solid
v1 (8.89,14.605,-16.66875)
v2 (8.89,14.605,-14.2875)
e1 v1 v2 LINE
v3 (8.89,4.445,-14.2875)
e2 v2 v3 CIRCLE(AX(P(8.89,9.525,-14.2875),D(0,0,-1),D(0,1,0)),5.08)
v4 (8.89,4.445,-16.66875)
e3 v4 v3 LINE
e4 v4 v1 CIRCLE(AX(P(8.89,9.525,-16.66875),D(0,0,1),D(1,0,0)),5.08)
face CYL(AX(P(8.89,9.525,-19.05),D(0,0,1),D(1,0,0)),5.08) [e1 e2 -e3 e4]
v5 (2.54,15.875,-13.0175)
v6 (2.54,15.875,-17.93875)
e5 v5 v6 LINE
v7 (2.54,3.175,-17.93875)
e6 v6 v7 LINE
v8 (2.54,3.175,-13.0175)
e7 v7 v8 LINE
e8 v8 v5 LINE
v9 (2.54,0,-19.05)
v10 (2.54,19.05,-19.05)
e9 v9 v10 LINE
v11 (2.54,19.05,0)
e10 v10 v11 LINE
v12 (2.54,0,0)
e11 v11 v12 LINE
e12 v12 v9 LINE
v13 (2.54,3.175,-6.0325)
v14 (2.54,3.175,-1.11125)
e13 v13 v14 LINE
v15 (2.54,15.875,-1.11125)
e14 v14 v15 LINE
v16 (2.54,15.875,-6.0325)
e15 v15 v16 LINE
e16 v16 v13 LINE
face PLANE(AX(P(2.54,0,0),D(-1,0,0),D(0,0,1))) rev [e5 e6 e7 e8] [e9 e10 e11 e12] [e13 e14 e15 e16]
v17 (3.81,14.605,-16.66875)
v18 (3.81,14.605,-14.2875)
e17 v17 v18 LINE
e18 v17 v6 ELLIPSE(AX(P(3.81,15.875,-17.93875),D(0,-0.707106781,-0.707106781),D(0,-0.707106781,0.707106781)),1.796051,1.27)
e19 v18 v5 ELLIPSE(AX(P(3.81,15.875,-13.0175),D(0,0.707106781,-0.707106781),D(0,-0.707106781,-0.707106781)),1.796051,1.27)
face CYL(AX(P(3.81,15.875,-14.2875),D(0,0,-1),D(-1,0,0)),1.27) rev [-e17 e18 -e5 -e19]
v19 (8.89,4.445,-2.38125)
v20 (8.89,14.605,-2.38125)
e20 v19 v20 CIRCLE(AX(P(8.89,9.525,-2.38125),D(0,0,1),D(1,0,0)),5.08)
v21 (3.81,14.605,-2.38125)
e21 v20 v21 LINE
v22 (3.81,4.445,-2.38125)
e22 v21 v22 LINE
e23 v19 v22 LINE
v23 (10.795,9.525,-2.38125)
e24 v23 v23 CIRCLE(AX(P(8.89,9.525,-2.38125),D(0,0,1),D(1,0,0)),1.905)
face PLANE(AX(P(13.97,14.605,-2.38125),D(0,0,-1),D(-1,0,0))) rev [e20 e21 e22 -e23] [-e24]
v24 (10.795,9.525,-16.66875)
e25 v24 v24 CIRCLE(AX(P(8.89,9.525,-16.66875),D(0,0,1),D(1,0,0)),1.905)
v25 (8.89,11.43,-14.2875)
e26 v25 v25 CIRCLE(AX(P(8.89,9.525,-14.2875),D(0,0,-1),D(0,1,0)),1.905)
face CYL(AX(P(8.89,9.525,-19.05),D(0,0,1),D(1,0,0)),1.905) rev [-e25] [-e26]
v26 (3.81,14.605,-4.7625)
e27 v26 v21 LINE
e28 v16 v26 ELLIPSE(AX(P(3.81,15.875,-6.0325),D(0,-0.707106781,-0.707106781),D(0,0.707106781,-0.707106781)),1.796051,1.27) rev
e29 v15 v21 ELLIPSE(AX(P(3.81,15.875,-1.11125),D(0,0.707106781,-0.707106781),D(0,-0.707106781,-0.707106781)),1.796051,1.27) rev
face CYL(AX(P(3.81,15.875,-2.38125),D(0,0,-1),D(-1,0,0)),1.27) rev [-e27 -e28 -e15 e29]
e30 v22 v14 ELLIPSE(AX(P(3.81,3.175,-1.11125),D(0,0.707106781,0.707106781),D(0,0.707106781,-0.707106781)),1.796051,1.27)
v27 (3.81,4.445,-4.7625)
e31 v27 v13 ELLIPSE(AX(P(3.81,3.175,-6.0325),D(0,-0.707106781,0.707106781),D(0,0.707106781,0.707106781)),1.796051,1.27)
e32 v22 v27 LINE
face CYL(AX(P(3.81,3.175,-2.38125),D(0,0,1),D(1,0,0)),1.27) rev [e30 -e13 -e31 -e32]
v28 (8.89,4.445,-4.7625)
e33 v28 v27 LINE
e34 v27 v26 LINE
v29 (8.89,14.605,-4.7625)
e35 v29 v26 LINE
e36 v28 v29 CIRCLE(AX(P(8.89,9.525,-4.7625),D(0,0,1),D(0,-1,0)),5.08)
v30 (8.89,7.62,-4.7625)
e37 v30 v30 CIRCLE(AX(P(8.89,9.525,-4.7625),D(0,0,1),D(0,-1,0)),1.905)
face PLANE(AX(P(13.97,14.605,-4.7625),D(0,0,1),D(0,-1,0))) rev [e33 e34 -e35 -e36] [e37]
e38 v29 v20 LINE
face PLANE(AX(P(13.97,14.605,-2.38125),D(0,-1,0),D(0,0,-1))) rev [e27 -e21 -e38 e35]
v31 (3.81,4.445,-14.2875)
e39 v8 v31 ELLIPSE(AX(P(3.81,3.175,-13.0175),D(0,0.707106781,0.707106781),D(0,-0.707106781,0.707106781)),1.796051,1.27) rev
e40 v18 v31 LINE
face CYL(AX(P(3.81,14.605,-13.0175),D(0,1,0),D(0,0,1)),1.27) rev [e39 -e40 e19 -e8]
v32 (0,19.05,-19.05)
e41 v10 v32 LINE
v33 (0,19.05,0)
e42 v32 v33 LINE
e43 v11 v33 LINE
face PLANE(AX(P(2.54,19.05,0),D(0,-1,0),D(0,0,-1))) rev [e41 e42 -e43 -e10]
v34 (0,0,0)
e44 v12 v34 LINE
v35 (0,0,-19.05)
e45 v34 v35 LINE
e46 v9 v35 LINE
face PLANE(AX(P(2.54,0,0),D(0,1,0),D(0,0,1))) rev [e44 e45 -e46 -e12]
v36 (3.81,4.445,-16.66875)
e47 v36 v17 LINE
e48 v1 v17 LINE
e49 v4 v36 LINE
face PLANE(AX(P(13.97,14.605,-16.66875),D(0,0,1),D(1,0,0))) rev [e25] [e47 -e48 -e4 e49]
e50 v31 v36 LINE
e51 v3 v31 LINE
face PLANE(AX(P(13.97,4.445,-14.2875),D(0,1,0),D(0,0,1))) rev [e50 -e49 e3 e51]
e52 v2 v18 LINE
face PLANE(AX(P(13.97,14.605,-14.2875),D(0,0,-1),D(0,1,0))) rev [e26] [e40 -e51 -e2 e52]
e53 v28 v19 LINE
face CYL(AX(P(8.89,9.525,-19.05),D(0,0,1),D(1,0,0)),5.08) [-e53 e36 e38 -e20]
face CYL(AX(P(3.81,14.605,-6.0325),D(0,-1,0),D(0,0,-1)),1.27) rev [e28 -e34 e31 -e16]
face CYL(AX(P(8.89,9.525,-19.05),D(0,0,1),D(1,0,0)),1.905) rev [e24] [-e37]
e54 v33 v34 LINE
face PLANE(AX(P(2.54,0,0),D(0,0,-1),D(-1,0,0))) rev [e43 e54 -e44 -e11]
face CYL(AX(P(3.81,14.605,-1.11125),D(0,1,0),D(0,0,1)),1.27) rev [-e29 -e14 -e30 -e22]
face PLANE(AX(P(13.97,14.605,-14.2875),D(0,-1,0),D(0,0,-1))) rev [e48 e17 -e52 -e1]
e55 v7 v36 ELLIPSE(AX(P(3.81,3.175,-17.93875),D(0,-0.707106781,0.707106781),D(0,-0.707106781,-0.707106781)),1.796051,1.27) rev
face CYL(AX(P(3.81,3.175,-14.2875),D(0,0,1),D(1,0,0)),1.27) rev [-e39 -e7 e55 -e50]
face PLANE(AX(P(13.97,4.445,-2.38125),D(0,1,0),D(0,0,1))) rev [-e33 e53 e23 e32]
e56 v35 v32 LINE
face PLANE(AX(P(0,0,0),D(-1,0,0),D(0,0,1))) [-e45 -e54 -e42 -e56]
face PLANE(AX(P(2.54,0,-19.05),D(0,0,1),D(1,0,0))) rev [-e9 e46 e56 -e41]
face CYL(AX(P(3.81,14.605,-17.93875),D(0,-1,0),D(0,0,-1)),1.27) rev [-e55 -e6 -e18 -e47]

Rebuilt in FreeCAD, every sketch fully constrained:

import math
import FreeCAD as App
import Part
import Sketcher
Q = App.Units.Quantity


def edges_at(feature, points):
    """Names of the edges that pass closest to the given points."""
    edges = feature.Shape.Edges
    near = lambda p: min(range(len(edges)), key=lambda i: edges[i].distToShape(Part.Vertex(*p))[0])
    return sorted({f"Edge{near(p) + 1}" for p in points})


def add_polygon(sketch, points):
    """Adds a closed chain of lines whose ends are joined by coincident constraints."""
    first, n = sketch.GeometryCount, len(points)
    for a, b in zip(points, points[1:] + points[:1]):
        sketch.addGeometry(Part.LineSegment(App.Vector(*a, 0), App.Vector(*b, 0)), False)
    for i in range(n):
        sketch.addConstraint(Sketcher.Constraint("Coincident", first + i, 2, first + (i + 1) % n, 1))

doc = App.newDocument("Part")
body = doc.addObject("PartDesign::Body", "Body")

# Sketch on YZ plane
sketch1 = doc.addObject("Sketcher::SketchObject", "Sketch")
body.addObject(sketch1)
sketch1.AttachmentSupport = (doc.YZ_Plane, [""])
sketch1.MapMode = "FlatFace"
add_polygon(sketch1, [(19, 0), (0, 0), (0, -19), (19, -19)])  # lines 0-3
sketch1.addConstraint(Sketcher.Constraint("Horizontal", 0))
sketch1.addConstraint(Sketcher.Constraint("Vertical", 1))
sketch1.addConstraint(Sketcher.Constraint("Horizontal", 2))
sketch1.addConstraint(Sketcher.Constraint("Vertical", 3))
sketch1.addConstraint(Sketcher.Constraint("Coincident", 0, 2, -1, 1))
sketch1.addConstraint(Sketcher.Constraint("Equal", 2, 1))
sketch1.addConstraint(Sketcher.Constraint("DistanceX", 0, 2, 0, 1, Q("0.75 in")))
pad1 = doc.addObject("PartDesign::Pad", "Pad")
body.addObject(pad1)
pad1.Profile = sketch1
pad1.Length = Q("0.1 in")

# Sketch on YZ plane
sketch2 = doc.addObject("Sketcher::SketchObject", "Sketch001")
body.addObject(sketch2)
sketch2.AttachmentSupport = (doc.YZ_Plane, [""])
sketch2.MapMode = "FlatFace"
sketch2.AttachmentOffset = App.Placement(App.Vector(0, 0, 0.1 * 25.4), App.Rotation())
add_polygon(sketch2, [(14.6, -2.4), (4.4, -2.4), (4.4, -4.8), (14.6, -4.8)])  # lines 0-3
add_polygon(sketch2, [(14.6, -14.3), (4.4, -14.3), (4.4, -16.7), (14.6, -16.7)])  # lines 4-7
sketch2.addConstraint(Sketcher.Constraint("Horizontal", 0))
sketch2.addConstraint(Sketcher.Constraint("Vertical", 1))
sketch2.addConstraint(Sketcher.Constraint("Horizontal", 2))
sketch2.addConstraint(Sketcher.Constraint("Vertical", 3))
sketch2.addConstraint(Sketcher.Constraint("Horizontal", 4))
sketch2.addConstraint(Sketcher.Constraint("Vertical", 5))
sketch2.addConstraint(Sketcher.Constraint("Horizontal", 6))
sketch2.addConstraint(Sketcher.Constraint("Vertical", 7))
sketch2.addConstraint(Sketcher.Constraint("Vertical", 1, 2, 4, 2))
sketch2.addConstraint(Sketcher.Constraint("Vertical", 3, 2, 6, 2))
sketch2.addConstraint(Sketcher.Constraint("Equal", 3, 5))
sketch2.addConstraint(Sketcher.Constraint("DistanceX", 0, 2, 0, 1, Q("0.4 in")))
sketch2.addConstraint(Sketcher.Constraint("DistanceY", 1, 2, 1, 1, Q("0.09375 in")))
sketch2.addConstraint(Sketcher.Constraint("DistanceX", -1, 1, 0, 2, Q("0.175 in")))
sketch2.addConstraint(Sketcher.Constraint("DistanceY", 0, 2, -1, 1, Q("0.09375 in")))
sketch2.addConstraint(Sketcher.Constraint("DistanceY", 4, 2, -1, 1, Q("0.5625 in")))
pad2 = doc.addObject("PartDesign::Pad", "Pad001")
body.addObject(pad2)
pad2.Profile = sketch2
pad2.Length = Q("0.45 in")

# Sketch on XY plane
sketch3 = doc.addObject("Sketcher::SketchObject", "Sketch002")
body.addObject(sketch3)
sketch3.AttachmentSupport = (doc.XY_Plane, [""])
sketch3.MapMode = "FlatFace"
sketch3.AttachmentOffset = App.Placement(App.Vector(0, 0, -0.09375 * 25.4), App.Rotation())
sketch3.addGeometry(Part.LineSegment(App.Vector(14, 15, 0), App.Vector(9, 15, 0)), False)
sketch3.addGeometry(Part.ArcOfCircle(Part.Circle(App.Vector(9, 10, 0), App.Vector(0, 0, 1), 5), math.radians(0), math.radians(90)), False)
sketch3.addGeometry(Part.LineSegment(App.Vector(14, 10, 0), App.Vector(14, 15, 0)), False)
sketch3.addGeometry(Part.LineSegment(App.Vector(14, 4, 0), App.Vector(14, 10, 0)), False)
sketch3.addGeometry(Part.ArcOfCircle(Part.Circle(App.Vector(9, 10, 0), App.Vector(0, 0, 1), 5), math.radians(-90), math.radians(0)), False)
sketch3.addGeometry(Part.LineSegment(App.Vector(9, 4, 0), App.Vector(14, 4, 0)), False)
sketch3.addConstraint(Sketcher.Constraint("Tangent", 0, 2, 1, 2))
sketch3.addConstraint(Sketcher.Constraint("Tangent", 1, 1, 2, 1))
sketch3.addConstraint(Sketcher.Constraint("Coincident", 2, 2, 0, 1))
sketch3.addConstraint(Sketcher.Constraint("Tangent", 3, 2, 4, 2))
sketch3.addConstraint(Sketcher.Constraint("Tangent", 4, 1, 5, 1))
sketch3.addConstraint(Sketcher.Constraint("Coincident", 5, 2, 3, 1))
sketch3.addConstraint(Sketcher.Constraint("Horizontal", 0))
sketch3.addConstraint(Sketcher.Constraint("Vertical", 2))
sketch3.addConstraint(Sketcher.Constraint("Vertical", 3))
sketch3.addConstraint(Sketcher.Constraint("Horizontal", 5))
sketch3.addConstraint(Sketcher.Constraint("Coincident", 4, 3, 1, 3))
sketch3.addConstraint(Sketcher.Constraint("Equal", 1, 4))
sketch3.addConstraint(Sketcher.Constraint("Radius", 1, Q("0.2 in")))
sketch3.addConstraint(Sketcher.Constraint("DistanceX", -1, 1, 1, 3, Q("0.35 in")))
sketch3.addConstraint(Sketcher.Constraint("DistanceY", -1, 1, 1, 3, Q("0.375 in")))
pocket1 = doc.addObject("PartDesign::Pocket", "Pocket")
body.addObject(pocket1)
pocket1.Profile = sketch3
pocket1.Type = "ThroughAll"

# Sketch on XY plane
sketch4 = doc.addObject("Sketcher::SketchObject", "Sketch003")
body.addObject(sketch4)
sketch4.AttachmentSupport = (doc.XY_Plane, [""])
sketch4.MapMode = "FlatFace"
sketch4.AttachmentOffset = App.Placement(App.Vector(0, 0, -0.09375 * 25.4), App.Rotation())
sketch4.addGeometry(Part.Circle(App.Vector(8.9, 9.5, 0), App.Vector(0, 0, 1), 1.9), False)
sketch4.addConstraint(Sketcher.Constraint("Diameter", 0, Q("0.15 in")))
sketch4.addConstraint(Sketcher.Constraint("DistanceX", -1, 1, 0, 3, Q("0.35 in")))
sketch4.addConstraint(Sketcher.Constraint("DistanceY", -1, 1, 0, 3, Q("0.375 in")))
pocket2 = doc.addObject("PartDesign::Pocket", "Pocket001")
body.addObject(pocket2)
pocket2.Profile = sketch4
pocket2.Type = "ThroughAll"
doc.recompute()

fillet = doc.addObject("PartDesign::Fillet", "Fillet")
body.addObject(fillet)
fillet.Base = (pocket2, edges_at(pocket2, [
    (2.54, 9.525, -2.381),
    (2.54, 4.445, -3.572),
    (2.54, 9.525, -4.763),
    (2.54, 14.605, -3.572),
    (2.54, 9.525, -14.287),
    (2.54, 4.445, -15.478),
    (2.54, 9.525, -16.669),
    (2.54, 14.605, -15.478),
]))
fillet.Radius = Q("0.05 in")

doc.recompute()
